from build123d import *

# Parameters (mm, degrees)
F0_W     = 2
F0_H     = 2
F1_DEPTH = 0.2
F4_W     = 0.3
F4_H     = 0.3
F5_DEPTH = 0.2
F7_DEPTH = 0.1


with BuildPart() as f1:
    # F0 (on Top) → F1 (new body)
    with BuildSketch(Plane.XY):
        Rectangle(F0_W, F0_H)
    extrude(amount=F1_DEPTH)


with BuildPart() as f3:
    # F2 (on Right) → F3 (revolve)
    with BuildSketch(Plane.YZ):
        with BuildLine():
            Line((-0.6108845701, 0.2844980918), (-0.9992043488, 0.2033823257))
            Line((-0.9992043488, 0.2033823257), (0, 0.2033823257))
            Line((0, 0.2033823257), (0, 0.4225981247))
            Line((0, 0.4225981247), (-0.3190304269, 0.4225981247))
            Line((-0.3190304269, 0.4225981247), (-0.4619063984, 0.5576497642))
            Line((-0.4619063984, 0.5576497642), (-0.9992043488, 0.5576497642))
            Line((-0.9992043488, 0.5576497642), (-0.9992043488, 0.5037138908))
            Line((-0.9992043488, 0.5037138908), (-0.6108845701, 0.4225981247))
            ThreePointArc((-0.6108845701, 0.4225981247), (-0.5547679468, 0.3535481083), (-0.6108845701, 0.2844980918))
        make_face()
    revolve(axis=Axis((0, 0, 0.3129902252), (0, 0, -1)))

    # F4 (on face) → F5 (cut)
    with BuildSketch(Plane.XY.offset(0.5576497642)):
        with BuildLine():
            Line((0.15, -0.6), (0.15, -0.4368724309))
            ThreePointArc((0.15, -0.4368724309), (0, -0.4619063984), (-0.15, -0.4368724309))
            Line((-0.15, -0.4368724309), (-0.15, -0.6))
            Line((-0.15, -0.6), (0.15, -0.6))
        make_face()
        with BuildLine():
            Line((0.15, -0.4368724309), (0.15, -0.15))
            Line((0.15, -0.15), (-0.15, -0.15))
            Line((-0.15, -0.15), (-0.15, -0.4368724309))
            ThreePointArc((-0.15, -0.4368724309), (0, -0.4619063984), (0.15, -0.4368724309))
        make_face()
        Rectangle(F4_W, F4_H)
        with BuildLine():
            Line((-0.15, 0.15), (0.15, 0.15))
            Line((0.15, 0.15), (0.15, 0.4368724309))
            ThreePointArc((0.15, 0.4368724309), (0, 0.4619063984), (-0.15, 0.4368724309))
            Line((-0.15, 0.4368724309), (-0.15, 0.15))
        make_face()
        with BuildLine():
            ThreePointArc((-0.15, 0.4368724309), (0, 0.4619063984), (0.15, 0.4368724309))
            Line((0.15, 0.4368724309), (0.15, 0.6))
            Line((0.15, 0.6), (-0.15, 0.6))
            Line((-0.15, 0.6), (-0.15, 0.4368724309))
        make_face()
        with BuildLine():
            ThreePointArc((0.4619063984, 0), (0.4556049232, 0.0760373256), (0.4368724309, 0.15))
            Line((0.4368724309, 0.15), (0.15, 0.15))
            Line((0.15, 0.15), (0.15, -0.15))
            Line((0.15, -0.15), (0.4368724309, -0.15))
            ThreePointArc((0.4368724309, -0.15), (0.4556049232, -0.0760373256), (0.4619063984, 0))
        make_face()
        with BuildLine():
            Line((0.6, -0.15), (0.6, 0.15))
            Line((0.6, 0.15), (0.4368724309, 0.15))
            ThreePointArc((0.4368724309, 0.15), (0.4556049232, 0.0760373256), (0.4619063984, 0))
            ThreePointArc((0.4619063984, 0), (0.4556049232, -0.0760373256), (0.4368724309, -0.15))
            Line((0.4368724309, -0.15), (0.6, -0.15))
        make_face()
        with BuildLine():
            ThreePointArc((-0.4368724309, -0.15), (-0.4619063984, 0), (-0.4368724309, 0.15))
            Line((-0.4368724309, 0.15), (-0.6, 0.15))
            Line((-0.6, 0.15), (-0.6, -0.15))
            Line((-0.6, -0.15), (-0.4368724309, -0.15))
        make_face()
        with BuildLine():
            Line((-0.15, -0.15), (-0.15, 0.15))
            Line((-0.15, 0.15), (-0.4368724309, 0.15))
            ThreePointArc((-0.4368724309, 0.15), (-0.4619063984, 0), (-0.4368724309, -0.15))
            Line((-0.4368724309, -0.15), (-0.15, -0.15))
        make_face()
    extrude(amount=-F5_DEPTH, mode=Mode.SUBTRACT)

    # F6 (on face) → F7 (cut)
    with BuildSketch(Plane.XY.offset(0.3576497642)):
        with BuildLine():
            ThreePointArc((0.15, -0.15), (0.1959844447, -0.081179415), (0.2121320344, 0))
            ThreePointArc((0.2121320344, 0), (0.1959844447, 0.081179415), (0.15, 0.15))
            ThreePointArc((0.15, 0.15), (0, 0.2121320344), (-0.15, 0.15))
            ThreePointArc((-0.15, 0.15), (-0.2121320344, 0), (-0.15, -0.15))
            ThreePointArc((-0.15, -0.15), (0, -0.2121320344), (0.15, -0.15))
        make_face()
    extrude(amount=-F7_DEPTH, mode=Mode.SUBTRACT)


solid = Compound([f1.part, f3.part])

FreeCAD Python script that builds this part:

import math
import FreeCAD as App
import Part
import Sketcher

V = App.Vector
Q = App.Units.Quantity

doc = App.newDocument("Part")
body = doc.addObject("PartDesign::Body", "Body")

# Sketch on XY plane
sketch1 = body.newObject("Sketcher::SketchObject", "Sketch")
sketch1.AttachmentSupport = (doc.getObject("XY_Plane"), [""])
sketch1.MapMode = "FlatFace"
sketch1.addGeometry([
    Part.LineSegment(V(-1, 1, 0), V(-1, -1, 0)),
    Part.LineSegment(V(-1, -1, 0), V(1, -1, 0)),
    Part.LineSegment(V(1, -1, 0), V(1, 1, 0)),
    Part.LineSegment(V(1, 1, 0), V(-1, 1, 0)),
], False)
sketch1.addConstraint([
    Sketcher.Constraint("Coincident", 0, 2, 1, 1),
    Sketcher.Constraint("Coincident", 1, 2, 2, 1),
    Sketcher.Constraint("Coincident", 2, 2, 3, 1),
    Sketcher.Constraint("Coincident", 3, 2, 0, 1),
    Sketcher.Constraint("Vertical", 0),
    Sketcher.Constraint("Horizontal", 1),
    Sketcher.Constraint("Vertical", 2),
    Sketcher.Constraint("Horizontal", 3),
    Sketcher.Constraint("Symmetric", 0, 2, 2, 2, -1, 1),
    Sketcher.Constraint("Equal", 3, 0),
    Sketcher.Constraint("DistanceX", 1, 1, 1, 2, Q("2 mm")),
])
pad1 = body.newObject("PartDesign::Pad", "Pad")
pad1.Profile = sketch1
pad1.Length = 0.2
body2 = doc.addObject("PartDesign::Body", "Body001")

# Sketch on YZ plane
sketch2 = body2.newObject("Sketcher::SketchObject", "Sketch001")
sketch2.AttachmentSupport = (doc.getObject("YZ_Plane001"), [""])
sketch2.MapMode = "FlatFace"
sketch2.addGeometry([
    Part.LineSegment(V(-0.610885, 0.284498, 0), V(-0.999204, 0.203382, 0)),  # 0
    Part.LineSegment(V(-0.999204, 0.203382, 0), V(0, 0.203382, 0)),  # 1
    Part.LineSegment(V(0, 0.203382, 0), V(0, 0.422598, 0)),  # 2
    Part.LineSegment(V(0, 0.422598, 0), V(-0.31903, 0.422598, 0)),  # 3
    Part.LineSegment(V(-0.31903, 0.422598, 0), V(-0.461906, 0.55765, 0)),  # 4
    Part.LineSegment(V(-0.461906, 0.55765, 0), V(-0.999204, 0.55765, 0)),  # 5
    Part.LineSegment(V(-0.999204, 0.55765, 0), V(-0.999204, 0.503714, 0)),  # 6
    Part.LineSegment(V(-0.999204, 0.503714, 0), V(-0.610885, 0.422598, 0)),  # 7
    Part.ArcOfCircle(Part.Circle(V(-0.625308, 0.353548, 0), V(0, 0, 1), 0.07054), math.radians(-78.201197), math.radians(78.201197)),  # 8
], False)
sketch2.addConstraint([
    Sketcher.Constraint("Coincident", 0, 2, 1, 1),
    Sketcher.Constraint("Coincident", 1, 2, 2, 1),
    Sketcher.Constraint("Coincident", 2, 2, 3, 1),
    Sketcher.Constraint("Coincident", 3, 2, 4, 1),
    Sketcher.Constraint("Coincident", 4, 2, 5, 1),
    Sketcher.Constraint("Coincident", 5, 2, 6, 1),
    Sketcher.Constraint("Coincident", 6, 2, 7, 1),
    Sketcher.Constraint("Tangent", 7, 2, 8, 2),
    Sketcher.Constraint("Tangent", 8, 1, 0, 1),
    Sketcher.Constraint("Horizontal", 1),
    Sketcher.Constraint("Vertical", 2),
    Sketcher.Constraint("Horizontal", 3),
    Sketcher.Constraint("Horizontal", 5),
    Sketcher.Constraint("Vertical", 6),
    Sketcher.Constraint("PointOnObject", 1, 2, -2),
    Sketcher.Constraint("Horizontal", 3, 2, 7, 2),
    Sketcher.Constraint("Vertical", 0, 2, 5, 2),
    Sketcher.Constraint("Vertical", 7, 2, 8, 1),
    Sketcher.Constraint("Radius", 8, Q("0.07054 mm")),
    Sketcher.Constraint("Distance", 0, Q("0.396701 mm")),
    Sketcher.Constraint("DistanceX", 3, 2, 3, 1, Q("0.31903 mm")),
    Sketcher.Constraint("DistanceY", -1, 1, 2, 2, Q("0.422598 mm")),
    Sketcher.Constraint("DistanceY", -1, 1, 8, 1, Q("0.284498 mm")),
    Sketcher.Constraint("DistanceX", 8, 3, 4, 2, Q("0.163402 mm")),
    Sketcher.Constraint("DistanceY", 8, 3, 4, 2, Q("0.204102 mm")),
    Sketcher.Constraint("DistanceX", 1, 1, 1, 2, Q("0.999204 mm")),
])
revolution = body2.newObject("PartDesign::Revolution", "Revolution")
revolution.Profile = sketch2
revolution.ReferenceAxis = (sketch2, ["V_Axis"])
revolution.Angle = 360

# Sketch on XY plane
sketch3 = body2.newObject("Sketcher::SketchObject", "Sketch002")
sketch3.AttachmentSupport = (doc.getObject("XY_Plane001"), [""])
sketch3.MapMode = "FlatFace"
sketch3.AttachmentOffset = App.Placement(V(0, 0, 0.55765), App.Rotation())
sketch3.addGeometry([
    Part.LineSegment(V(0.15, -0.6, 0), V(0.15, -0.15, 0)),  # 0
    Part.LineSegment(V(0.15, -0.15, 0), V(0.6, -0.15, 0)),  # 1
    Part.LineSegment(V(0.6, -0.15, 0), V(0.6, 0.15, 0)),  # 2
    Part.LineSegment(V(0.6, 0.15, 0), V(0.15, 0.15, 0)),  # 3
    Part.LineSegment(V(0.15, 0.15, 0), V(0.15, 0.6, 0)),  # 4
    Part.LineSegment(V(0.15, 0.6, 0), V(-0.15, 0.6, 0)),  # 5
    Part.LineSegment(V(-0.15, 0.6, 0), V(-0.15, 0.15, 0)),  # 6
    Part.LineSegment(V(-0.15, 0.15, 0), V(-0.6, 0.15, 0)),  # 7
    Part.LineSegment(V(-0.6, 0.15, 0), V(-0.6, -0.15, 0)),  # 8
    Part.LineSegment(V(-0.6, -0.15, 0), V(-0.15, -0.15, 0)),  # 9
    Part.LineSegment(V(-0.15, -0.15, 0), V(-0.15, -0.6, 0)),  # 10
    Part.LineSegment(V(-0.15, -0.6, 0), V(0.15, -0.6, 0)),  # 11
], False)
sketch3.addConstraint([
    Sketcher.Constraint("Coincident", 0, 2, 1, 1),
    Sketcher.Constraint("Coincident", 1, 2, 2, 1),
    Sketcher.Constraint("Coincident", 2, 2, 3, 1),
    Sketcher.Constraint("Coincident", 3, 2, 4, 1),
    Sketcher.Constraint("Coincident", 4, 2, 5, 1),
    Sketcher.Constraint("Coincident", 5, 2, 6, 1),
    Sketcher.Constraint("Coincident", 6, 2, 7, 1),
    Sketcher.Constraint("Coincident", 7, 2, 8, 1),
    Sketcher.Constraint("Coincident", 8, 2, 9, 1),
    Sketcher.Constraint("Coincident", 9, 2, 10, 1),
    Sketcher.Constraint("Coincident", 10, 2, 11, 1),
    Sketcher.Constraint("Coincident", 11, 2, 0, 1),
    Sketcher.Constraint("Vertical", 0),
    Sketcher.Constraint("Horizontal", 1),
    Sketcher.Constraint("Vertical", 2),
    Sketcher.Constraint("Horizontal", 3),
    Sketcher.Constraint("Vertical", 4),
    Sketcher.Constraint("Horizontal", 5),
    Sketcher.Constraint("Vertical", 6),
    Sketcher.Constraint("Horizontal", 7),
    Sketcher.Constraint("Vertical", 8),
    Sketcher.Constraint("Horizontal", 9),
    Sketcher.Constraint("Vertical", 10),
    Sketcher.Constraint("Horizontal", 11),
    Sketcher.Constraint("Symmetric", 0, 2, 6, 2, -1, 1),
    Sketcher.Constraint("Symmetric", 2, 2, 8, 2, -1, 1),
    Sketcher.Constraint("Symmetric", 4, 2, 10, 2, -1, 1),
    Sketcher.Constraint("Symmetric", 3, 2, 6, 2, -2),
    Sketcher.Constraint("Equal", 9, 0),
    Sketcher.Constraint("Equal", 11, 2),
    Sketcher.Constraint("DistanceX", 5, 2, 5, 1, Q("0.3 mm")),
    Sketcher.Constraint("DistanceX", 1, 1, 1, 2, Q("0.45 mm")),
])
pocket1 = body2.newObject("PartDesign::Pocket", "Pocket")
pocket1.Profile = sketch3
pocket1.Length = 0.2

# Sketch on XY plane
sketch4 = body2.newObject("Sketcher::SketchObject", "Sketch003")
sketch4.AttachmentSupport = (doc.getObject("XY_Plane001"), [""])
sketch4.MapMode = "FlatFace"
sketch4.AttachmentOffset = App.Placement(V(0, 0, 0.35765), App.Rotation())
sketch4.addGeometry([
    Part.ArcOfCircle(Part.Circle(V(0, 0, 0), V(0, 0, 1), 0.212132), math.radians(-45), math.radians(0)),  # 0
    Part.ArcOfCircle(Part.Circle(V(0, 0, 0), V(0, 0, 1), 0.212132), math.radians(0), math.radians(45)),  # 1
    Part.ArcOfCircle(Part.Circle(V(0, 0, 0), V(0, 0, 1), 0.212132), math.radians(45), math.radians(135)),  # 2
    Part.ArcOfCircle(Part.Circle(V(0, 0, 0), V(0, 0, 1), 0.212132), math.radians(135), math.radians(225)),  # 3
    Part.ArcOfCircle(Part.Circle(V(0, 0, 0), V(0, 0, 1), 0.212132), math.radians(-135), math.radians(-45)),  # 4
], False)
sketch4.addConstraint([
    Sketcher.Constraint("Tangent", 0, 2, 1, 1),
    Sketcher.Constraint("Tangent", 1, 2, 2, 1),
    Sketcher.Constraint("Tangent", 2, 2, 3, 1),
    Sketcher.Constraint("Tangent", 3, 2, 4, 1),
    Sketcher.Constraint("Tangent", 4, 2, 0, 1),
    Sketcher.Constraint("Coincident", 0, 3, -1, 1),
    Sketcher.Constraint("Coincident", 2, 3, -1, 1),
    Sketcher.Constraint("PointOnObject", 0, 2, -1),
    Sketcher.Constraint("Horizontal", 1, 2, 2, 2),
    Sketcher.Constraint("Horizontal", 3, 2, 4, 2),
    Sketcher.Constraint("Vertical", 2, 2, 3, 2),
    Sketcher.Constraint("DistanceX", -1, 1, 1, 2, Q("0.15 mm")),
    Sketcher.Constraint("DistanceY", -1, 1, 1, 2, Q("0.15 mm")),
])
pocket2 = body2.newObject("PartDesign::Pocket", "Pocket001")
pocket2.Profile = sketch4
pocket2.Length = 0.1

doc.recompute()
